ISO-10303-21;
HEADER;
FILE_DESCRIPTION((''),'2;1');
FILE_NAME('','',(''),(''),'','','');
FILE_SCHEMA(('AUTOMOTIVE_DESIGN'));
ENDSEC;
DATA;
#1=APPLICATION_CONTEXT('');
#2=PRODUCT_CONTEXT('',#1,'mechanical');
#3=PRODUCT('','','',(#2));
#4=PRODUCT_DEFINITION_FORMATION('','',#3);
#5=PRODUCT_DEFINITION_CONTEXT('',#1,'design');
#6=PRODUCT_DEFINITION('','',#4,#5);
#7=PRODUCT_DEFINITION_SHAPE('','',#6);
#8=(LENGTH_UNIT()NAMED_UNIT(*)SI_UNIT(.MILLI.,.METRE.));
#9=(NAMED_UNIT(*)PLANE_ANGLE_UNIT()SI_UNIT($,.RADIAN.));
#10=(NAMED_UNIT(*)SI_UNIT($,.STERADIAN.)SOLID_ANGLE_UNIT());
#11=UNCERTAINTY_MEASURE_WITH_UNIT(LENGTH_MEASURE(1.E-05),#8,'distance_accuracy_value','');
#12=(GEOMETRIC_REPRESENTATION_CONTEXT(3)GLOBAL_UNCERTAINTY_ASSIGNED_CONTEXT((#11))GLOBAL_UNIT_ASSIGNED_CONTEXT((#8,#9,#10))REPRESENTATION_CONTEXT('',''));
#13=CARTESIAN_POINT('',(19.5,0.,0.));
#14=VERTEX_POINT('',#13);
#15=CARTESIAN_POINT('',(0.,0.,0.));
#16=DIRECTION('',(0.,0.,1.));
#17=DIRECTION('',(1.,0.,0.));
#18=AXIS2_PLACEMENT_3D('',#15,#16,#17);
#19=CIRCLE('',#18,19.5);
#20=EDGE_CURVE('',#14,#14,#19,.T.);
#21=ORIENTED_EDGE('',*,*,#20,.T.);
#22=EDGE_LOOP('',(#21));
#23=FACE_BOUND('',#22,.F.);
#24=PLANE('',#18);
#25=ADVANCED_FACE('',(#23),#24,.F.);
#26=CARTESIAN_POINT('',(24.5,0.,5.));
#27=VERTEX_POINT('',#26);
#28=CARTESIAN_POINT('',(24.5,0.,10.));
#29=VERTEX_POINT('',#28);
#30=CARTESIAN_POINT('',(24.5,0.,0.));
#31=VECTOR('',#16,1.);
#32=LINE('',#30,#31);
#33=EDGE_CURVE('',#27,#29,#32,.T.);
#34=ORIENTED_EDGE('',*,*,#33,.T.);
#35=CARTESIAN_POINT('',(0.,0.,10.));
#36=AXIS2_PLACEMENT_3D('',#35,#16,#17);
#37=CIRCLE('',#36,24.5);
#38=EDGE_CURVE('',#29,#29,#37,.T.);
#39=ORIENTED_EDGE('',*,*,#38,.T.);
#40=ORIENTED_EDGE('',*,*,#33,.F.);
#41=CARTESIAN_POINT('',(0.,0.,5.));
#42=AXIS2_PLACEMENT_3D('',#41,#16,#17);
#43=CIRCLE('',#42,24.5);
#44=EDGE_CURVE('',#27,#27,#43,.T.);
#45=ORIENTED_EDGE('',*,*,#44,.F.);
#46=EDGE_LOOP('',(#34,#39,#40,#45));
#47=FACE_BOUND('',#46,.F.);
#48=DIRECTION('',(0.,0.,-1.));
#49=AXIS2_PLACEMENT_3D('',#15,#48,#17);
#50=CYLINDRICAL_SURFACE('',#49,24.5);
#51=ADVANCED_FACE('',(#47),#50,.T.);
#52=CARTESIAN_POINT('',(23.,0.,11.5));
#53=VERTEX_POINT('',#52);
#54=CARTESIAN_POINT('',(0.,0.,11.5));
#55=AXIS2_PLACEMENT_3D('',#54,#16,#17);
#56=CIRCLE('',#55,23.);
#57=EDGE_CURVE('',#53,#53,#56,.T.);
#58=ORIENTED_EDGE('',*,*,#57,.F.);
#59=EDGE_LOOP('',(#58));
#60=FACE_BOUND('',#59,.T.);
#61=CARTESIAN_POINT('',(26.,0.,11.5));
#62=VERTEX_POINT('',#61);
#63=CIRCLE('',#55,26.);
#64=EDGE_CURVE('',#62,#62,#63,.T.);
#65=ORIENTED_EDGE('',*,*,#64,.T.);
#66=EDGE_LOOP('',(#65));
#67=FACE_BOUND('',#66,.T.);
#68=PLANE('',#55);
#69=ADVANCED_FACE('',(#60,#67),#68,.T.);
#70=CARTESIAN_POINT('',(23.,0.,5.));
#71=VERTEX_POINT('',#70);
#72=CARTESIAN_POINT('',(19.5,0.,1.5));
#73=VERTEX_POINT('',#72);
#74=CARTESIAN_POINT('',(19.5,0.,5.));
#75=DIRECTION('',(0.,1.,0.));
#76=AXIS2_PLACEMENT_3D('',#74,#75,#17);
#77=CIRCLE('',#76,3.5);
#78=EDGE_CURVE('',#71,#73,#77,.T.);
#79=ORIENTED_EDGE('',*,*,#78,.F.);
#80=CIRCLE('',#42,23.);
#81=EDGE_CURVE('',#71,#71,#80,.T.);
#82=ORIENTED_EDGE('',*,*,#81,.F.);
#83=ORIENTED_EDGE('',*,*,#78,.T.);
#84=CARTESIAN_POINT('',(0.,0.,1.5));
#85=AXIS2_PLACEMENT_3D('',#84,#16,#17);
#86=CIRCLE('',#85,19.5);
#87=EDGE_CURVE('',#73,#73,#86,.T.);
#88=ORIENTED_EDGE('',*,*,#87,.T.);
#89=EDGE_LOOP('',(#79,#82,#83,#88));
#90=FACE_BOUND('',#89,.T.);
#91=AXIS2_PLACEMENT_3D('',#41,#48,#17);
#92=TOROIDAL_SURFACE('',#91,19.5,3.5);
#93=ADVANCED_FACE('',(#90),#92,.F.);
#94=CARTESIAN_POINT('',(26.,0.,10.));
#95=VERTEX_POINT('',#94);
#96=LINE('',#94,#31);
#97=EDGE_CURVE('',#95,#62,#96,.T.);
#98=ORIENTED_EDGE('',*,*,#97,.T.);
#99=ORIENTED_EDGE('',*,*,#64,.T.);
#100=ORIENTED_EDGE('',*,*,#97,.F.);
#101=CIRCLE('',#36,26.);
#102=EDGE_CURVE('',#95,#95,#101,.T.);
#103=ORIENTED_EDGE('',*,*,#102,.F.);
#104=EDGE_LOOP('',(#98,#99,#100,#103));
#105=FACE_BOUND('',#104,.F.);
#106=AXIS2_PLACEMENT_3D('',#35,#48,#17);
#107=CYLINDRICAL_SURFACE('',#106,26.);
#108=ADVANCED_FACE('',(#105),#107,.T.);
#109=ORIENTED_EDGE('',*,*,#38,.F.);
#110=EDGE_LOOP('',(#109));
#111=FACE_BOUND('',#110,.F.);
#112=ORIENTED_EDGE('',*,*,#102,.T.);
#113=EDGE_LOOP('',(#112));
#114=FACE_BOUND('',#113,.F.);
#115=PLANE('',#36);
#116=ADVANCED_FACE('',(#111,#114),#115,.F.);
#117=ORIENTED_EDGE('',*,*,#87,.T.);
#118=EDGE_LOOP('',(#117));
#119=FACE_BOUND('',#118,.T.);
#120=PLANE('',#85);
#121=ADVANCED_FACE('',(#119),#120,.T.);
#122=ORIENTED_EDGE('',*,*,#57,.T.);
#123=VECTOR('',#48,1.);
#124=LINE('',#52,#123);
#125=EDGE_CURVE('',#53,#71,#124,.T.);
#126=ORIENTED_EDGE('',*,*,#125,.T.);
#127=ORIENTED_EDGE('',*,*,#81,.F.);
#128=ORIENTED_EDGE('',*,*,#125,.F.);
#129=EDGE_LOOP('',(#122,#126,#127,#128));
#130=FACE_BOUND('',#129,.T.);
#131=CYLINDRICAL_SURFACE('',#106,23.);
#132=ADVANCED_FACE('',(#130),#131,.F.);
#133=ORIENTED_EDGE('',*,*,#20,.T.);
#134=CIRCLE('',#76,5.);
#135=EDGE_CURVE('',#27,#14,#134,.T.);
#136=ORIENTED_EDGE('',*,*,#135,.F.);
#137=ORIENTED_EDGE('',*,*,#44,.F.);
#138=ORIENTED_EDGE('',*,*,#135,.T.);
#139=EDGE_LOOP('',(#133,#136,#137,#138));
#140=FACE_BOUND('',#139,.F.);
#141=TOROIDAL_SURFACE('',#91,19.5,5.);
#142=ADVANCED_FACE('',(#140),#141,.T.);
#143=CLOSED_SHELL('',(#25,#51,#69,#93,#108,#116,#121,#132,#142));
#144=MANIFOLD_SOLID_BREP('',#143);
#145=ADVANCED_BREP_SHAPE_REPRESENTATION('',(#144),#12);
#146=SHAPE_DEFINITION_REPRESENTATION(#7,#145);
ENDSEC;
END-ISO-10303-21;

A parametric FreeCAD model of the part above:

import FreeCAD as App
import Part
import Sketcher


def edges_at(feature, points):
    """Names of the edges that pass closest to the given points."""
    edges = feature.Shape.Edges
    near = lambda p: min(range(len(edges)), key=lambda i: edges[i].distToShape(Part.Vertex(*p))[0])
    return sorted({f"Edge{near(p) + 1}" for p in points})


def faces_at(feature, points):
    """Names of the faces that lie closest to the given points."""
    faces = feature.Shape.Faces
    near = lambda p: min(range(len(faces)), key=lambda i: faces[i].distToShape(Part.Vertex(*p))[0])
    return sorted({f"Face{near(p) + 1}" for p in points})

doc = App.newDocument("Part")
body = doc.addObject("PartDesign::Body", "Body")

# Sketch on XY plane
sketch1 = doc.addObject("Sketcher::SketchObject", "Sketch")
body.addObject(sketch1)
sketch1.AttachmentSupport = (doc.XY_Plane, [""])
sketch1.MapMode = "FlatFace"
sketch1.addGeometry(Part.Circle(App.Vector(0, 0, 0), App.Vector(0, 0, 1), 24), False)
sketch1.addConstraint(Sketcher.Constraint("Coincident", 0, 3, -1, 1))
sketch1.addConstraint(Sketcher.Constraint("Diameter", 0, 49.0))
pad1 = doc.addObject("PartDesign::Pad", "Pad")
body.addObject(pad1)
pad1.Profile = sketch1
pad1.Length = 10
doc.recompute()

fillet = doc.addObject("PartDesign::Fillet", "Fillet")
body.addObject(fillet)
fillet.Base = (pad1, edges_at(pad1, [(-24.5, 0, 0)]))
fillet.Radius = 5
doc.recompute()

thickness = doc.addObject("PartDesign::Thickness", "Thickness")
body.addObject(thickness)
thickness.Base = (fillet, faces_at(fillet, [(0, 0, 10)]))
thickness.Value = 1.5
thickness.Reversed = True
thickness.Join = "Arc"

# Sketch on XY plane
sketch2 = doc.addObject("Sketcher::SketchObject", "Sketch001")
body.addObject(sketch2)
sketch2.AttachmentSupport = (doc.XY_Plane, [""])
sketch2.MapMode = "FlatFace"
sketch2.AttachmentOffset = App.Placement(App.Vector(0, 0, 10), App.Rotation())
sketch2.addGeometry(Part.Circle(App.Vector(0, 0, 0), App.Vector(0, 0, 1), 26), False)
sketch2.addGeometry(Part.Circle(App.Vector(0, 0, 0), App.Vector(0, 0, 1), 23), False)
sketch2.addConstraint(Sketcher.Constraint("Coincident", 0, 3, -1, 1))
sketch2.addConstraint(Sketcher.Constraint("Coincident", 1, 3, -1, 1))
sketch2.addConstraint(Sketcher.Constraint("Diameter", 0, 52.0))
sketch2.addConstraint(Sketcher.Constraint("Diameter", 1, 46.0))
pad2 = doc.addObject("PartDesign::Pad", "Pad001")
body.addObject(pad2)
pad2.Profile = sketch2
pad2.Length = 1.5

doc.recompute()
